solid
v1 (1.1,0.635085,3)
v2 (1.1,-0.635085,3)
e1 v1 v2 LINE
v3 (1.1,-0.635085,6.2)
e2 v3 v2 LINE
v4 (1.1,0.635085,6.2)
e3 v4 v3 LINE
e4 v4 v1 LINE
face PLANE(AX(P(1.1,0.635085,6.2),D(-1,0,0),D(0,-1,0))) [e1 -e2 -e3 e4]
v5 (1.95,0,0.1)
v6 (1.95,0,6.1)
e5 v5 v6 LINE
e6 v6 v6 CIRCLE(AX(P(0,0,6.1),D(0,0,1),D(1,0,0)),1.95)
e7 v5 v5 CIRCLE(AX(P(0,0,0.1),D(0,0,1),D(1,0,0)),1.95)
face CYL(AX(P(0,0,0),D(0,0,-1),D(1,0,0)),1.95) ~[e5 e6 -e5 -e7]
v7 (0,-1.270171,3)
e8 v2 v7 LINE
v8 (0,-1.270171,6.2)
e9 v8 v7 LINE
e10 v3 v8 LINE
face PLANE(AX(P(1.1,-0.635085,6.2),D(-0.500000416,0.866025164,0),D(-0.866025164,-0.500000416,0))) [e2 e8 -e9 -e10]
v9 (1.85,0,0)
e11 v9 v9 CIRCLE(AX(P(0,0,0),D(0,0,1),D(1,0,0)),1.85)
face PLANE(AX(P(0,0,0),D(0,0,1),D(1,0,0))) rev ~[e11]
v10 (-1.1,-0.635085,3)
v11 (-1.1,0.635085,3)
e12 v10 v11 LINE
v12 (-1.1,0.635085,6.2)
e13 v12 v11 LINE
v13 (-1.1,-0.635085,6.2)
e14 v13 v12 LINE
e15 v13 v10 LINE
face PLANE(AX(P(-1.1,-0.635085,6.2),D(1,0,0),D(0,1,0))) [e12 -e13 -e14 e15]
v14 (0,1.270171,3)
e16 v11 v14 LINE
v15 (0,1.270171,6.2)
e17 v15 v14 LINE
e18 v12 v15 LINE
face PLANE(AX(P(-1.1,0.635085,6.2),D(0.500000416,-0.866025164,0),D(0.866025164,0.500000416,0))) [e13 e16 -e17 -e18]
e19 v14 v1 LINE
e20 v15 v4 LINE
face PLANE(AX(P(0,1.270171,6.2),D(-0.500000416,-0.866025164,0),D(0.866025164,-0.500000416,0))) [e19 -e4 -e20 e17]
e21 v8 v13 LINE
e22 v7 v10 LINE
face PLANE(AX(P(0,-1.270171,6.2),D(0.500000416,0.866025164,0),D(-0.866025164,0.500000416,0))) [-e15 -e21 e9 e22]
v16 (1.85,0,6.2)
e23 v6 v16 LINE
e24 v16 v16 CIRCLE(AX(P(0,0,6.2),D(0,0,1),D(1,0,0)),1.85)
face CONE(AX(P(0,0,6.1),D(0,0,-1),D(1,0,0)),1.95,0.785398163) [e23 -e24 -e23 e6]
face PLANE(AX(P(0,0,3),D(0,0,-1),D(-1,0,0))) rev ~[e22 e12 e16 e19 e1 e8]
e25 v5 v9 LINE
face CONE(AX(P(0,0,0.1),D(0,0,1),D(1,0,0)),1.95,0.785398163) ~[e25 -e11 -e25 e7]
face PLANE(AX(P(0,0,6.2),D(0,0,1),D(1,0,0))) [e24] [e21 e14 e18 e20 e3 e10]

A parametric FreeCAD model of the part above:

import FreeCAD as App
import Part
import Sketcher


def edges_at(feature, points):
    """Names of the edges that pass closest to the given points."""
    edges = feature.Shape.Edges
    near = lambda p: min(range(len(edges)), key=lambda i: edges[i].distToShape(Part.Vertex(*p))[0])
    return sorted({f"Edge{near(p) + 1}" for p in points})

doc = App.newDocument("Part")
body = doc.addObject("PartDesign::Body", "Body")

# Sketch on XY plane
sketch1 = body.newObject("Sketcher::SketchObject", "Sketch")
sketch1.AttachmentSupport = (doc.getObject("XY_Plane"), [""])
sketch1.MapMode = "FlatFace"
sketch1.addGeometry(Part.Circle(App.Vector(0, 0, 0), App.Vector(0, 0, 1), 1.9), False)
sketch1.addConstraint(Sketcher.Constraint("Coincident", 0, 3, -1, 1))
sketch1.addConstraint(Sketcher.Constraint("Diameter", 0, 3.9))
pad1 = body.newObject("PartDesign::Pad", "Pad")
pad1.Profile = sketch1
pad1.Length = 6.2

# Sketch on XY plane
sketch2 = body.newObject("Sketcher::SketchObject", "Sketch001")
sketch2.AttachmentSupport = (doc.getObject("XY_Plane"), [""])
sketch2.MapMode = "FlatFace"
sketch2.AttachmentOffset = App.Placement(App.Vector(0, 0, 6.2), App.Rotation())
sketch2.addGeometry(Part.LineSegment(App.Vector(-1.1, 0.6, 0), App.Vector(-1.1, -0.6, 0)), False)
sketch2.addGeometry(Part.LineSegment(App.Vector(-1.1, -0.6, 0), App.Vector(0, -1.3, 0)), False)
sketch2.addGeometry(Part.LineSegment(App.Vector(0, -1.3, 0), App.Vector(1.1, -0.6, 0)), False)
sketch2.addGeometry(Part.LineSegment(App.Vector(1.1, -0.6, 0), App.Vector(1.1, 0.6, 0)), False)
sketch2.addGeometry(Part.LineSegment(App.Vector(1.1, 0.6, 0), App.Vector(0, 1.3, 0)), False)
sketch2.addGeometry(Part.LineSegment(App.Vector(0, 1.3, 0), App.Vector(-1.1, 0.6, 0)), False)
sketch2.addConstraint(Sketcher.Constraint("Coincident", 0, 2, 1, 1))
sketch2.addConstraint(Sketcher.Constraint("Coincident", 1, 2, 2, 1))
sketch2.addConstraint(Sketcher.Constraint("Coincident", 2, 2, 3, 1))
sketch2.addConstraint(Sketcher.Constraint("Coincident", 3, 2, 4, 1))
sketch2.addConstraint(Sketcher.Constraint("Coincident", 4, 2, 5, 1))
sketch2.addConstraint(Sketcher.Constraint("Coincident", 5, 2, 0, 1))
sketch2.addConstraint(Sketcher.Constraint("Vertical", 0))
sketch2.addConstraint(Sketcher.Constraint("Vertical", 3))
sketch2.addConstraint(Sketcher.Constraint("Symmetric", 0, 2, 3, 2, -1, 1))
sketch2.addConstraint(Sketcher.Constraint("Symmetric", 1, 2, 4, 2, -1, 1))
sketch2.addConstraint(Sketcher.Constraint("PointOnObject", 1, 2, -2))
sketch2.addConstraint(Sketcher.Constraint("Parallel", 2, 5))
sketch2.addConstraint(Sketcher.Constraint("Horizontal", 0, 2, 2, 2))
sketch2.addConstraint(Sketcher.Constraint("DistanceX", 0, 2, -1, 1, 1.1))
sketch2.addConstraint(Sketcher.Constraint("DistanceY", 0, 2, 0, 1, 1.27017))
sketch2.addConstraint(Sketcher.Constraint("Distance", 1, 1.270171))
pocket1 = body.newObject("PartDesign::Pocket", "Pocket")
pocket1.Profile = sketch2
pocket1.Length = 3.2
doc.recompute()

chamfer = body.newObject("PartDesign::Chamfer", "Chamfer")
chamfer.Base = (pocket1, edges_at(pocket1, [(-1.95, 0, 0)]))
chamfer.Size = 0.1
doc.recompute()

chamfer2 = body.newObject("PartDesign::Chamfer", "Chamfer001")
chamfer2.Base = (chamfer, edges_at(chamfer, [(-1.95, 0, 6.2)]))
chamfer2.Size = 0.1

doc.recompute()
